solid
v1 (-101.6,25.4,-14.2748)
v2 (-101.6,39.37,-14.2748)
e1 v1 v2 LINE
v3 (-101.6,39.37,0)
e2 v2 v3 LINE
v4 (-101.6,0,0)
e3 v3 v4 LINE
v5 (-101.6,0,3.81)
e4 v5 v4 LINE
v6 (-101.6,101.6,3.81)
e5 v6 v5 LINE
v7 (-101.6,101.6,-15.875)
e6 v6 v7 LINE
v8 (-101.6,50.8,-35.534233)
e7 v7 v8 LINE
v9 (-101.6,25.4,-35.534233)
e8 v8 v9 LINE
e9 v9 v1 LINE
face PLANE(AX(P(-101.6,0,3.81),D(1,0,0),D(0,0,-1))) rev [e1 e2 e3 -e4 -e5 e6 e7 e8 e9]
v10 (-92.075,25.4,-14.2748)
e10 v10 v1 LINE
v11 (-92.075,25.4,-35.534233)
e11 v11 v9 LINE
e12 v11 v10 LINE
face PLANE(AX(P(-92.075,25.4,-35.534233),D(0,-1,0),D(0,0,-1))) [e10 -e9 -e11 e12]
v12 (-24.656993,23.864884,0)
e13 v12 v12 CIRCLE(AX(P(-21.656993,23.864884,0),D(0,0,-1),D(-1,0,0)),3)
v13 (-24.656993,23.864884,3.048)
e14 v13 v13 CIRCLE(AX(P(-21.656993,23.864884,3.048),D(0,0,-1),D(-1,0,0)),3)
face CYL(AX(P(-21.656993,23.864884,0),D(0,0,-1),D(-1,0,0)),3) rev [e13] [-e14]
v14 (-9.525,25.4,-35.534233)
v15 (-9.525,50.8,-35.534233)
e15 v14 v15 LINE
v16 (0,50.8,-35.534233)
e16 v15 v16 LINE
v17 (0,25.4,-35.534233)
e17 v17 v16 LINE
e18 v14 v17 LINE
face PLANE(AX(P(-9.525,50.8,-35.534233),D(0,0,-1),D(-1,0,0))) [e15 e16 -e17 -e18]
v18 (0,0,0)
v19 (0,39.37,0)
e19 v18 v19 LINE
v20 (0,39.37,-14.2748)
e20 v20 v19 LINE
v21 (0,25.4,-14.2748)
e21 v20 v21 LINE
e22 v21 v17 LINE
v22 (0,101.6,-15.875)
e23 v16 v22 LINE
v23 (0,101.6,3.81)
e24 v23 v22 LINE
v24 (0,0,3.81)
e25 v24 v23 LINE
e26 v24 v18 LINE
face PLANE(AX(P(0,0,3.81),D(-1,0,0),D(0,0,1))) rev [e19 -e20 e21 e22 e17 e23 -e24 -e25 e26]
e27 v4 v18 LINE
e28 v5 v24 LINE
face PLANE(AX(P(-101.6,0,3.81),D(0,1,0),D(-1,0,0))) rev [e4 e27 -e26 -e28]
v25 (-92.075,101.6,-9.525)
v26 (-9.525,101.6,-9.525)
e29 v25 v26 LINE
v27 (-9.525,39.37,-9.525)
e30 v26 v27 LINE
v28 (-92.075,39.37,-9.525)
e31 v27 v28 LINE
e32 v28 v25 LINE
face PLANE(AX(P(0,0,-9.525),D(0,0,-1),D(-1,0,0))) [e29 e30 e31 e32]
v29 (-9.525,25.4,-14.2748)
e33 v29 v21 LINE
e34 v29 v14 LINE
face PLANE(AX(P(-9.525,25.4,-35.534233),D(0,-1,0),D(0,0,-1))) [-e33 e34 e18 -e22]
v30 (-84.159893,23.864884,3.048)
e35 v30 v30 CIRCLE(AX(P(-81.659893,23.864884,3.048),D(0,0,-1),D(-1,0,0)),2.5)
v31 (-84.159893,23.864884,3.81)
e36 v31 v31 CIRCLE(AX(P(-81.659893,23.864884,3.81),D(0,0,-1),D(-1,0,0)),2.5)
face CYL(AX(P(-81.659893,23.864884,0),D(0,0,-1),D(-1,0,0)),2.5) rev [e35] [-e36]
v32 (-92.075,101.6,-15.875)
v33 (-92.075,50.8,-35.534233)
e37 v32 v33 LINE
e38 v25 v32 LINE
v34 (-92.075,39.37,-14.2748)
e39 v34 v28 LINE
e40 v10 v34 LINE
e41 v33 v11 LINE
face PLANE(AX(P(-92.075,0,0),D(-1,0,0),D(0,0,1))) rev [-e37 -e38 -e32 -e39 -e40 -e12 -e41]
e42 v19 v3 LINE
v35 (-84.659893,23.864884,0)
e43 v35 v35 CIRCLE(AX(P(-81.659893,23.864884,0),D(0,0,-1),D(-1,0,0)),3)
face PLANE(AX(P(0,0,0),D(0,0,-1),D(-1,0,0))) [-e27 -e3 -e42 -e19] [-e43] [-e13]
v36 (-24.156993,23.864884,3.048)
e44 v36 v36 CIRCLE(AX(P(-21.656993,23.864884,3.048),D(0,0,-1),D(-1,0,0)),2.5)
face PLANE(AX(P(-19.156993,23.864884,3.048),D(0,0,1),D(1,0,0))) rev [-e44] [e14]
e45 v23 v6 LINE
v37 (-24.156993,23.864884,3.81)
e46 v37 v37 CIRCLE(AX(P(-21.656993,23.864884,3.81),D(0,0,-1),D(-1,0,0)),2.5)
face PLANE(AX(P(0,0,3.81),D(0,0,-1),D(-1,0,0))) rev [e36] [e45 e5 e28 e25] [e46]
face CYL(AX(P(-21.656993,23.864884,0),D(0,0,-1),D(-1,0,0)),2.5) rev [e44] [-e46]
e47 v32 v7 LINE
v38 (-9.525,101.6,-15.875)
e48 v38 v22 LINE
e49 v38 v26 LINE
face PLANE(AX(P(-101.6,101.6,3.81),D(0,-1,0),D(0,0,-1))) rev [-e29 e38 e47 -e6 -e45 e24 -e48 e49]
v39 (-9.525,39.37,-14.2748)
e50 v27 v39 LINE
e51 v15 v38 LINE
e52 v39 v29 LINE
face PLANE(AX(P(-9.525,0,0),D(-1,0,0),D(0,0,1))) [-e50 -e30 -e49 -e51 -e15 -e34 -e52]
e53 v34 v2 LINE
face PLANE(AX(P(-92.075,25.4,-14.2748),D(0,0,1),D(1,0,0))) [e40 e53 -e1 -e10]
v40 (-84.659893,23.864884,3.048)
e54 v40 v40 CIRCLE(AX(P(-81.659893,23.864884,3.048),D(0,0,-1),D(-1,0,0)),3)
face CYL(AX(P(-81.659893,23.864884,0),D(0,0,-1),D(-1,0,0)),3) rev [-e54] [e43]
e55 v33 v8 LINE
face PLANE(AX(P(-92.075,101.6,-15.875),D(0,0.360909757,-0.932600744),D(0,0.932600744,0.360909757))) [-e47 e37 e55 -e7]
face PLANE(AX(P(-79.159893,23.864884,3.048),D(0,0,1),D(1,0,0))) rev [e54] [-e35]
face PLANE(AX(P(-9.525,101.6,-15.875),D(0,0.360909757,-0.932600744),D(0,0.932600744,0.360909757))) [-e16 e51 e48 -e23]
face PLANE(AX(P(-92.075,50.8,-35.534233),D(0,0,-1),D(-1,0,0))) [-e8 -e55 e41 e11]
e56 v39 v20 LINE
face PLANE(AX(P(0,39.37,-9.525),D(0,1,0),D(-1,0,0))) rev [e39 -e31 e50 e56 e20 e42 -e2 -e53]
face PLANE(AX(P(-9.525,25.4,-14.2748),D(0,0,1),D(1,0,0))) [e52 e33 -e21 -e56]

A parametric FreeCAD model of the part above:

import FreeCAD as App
import Part
import Sketcher
Q = App.Units.Quantity

doc = App.newDocument("Part")
params = doc.addObject("Spreadsheet::Sheet", "Params")
for row, (alias, value) in enumerate([
    ("sketch1_width", "4 in"),
    ("pad1_length", "0.15 in"),
    ("hole_diameter", "5 mm"),
    ("hole_cbore_diameter", "6 mm"),
    ("hole_cbore_depth", "0.12 in"),
    ("sketch3_width", "4 in"),
    ("sketch3_height", "2.45 in"),
    ("pad2_length", "0.375 in"),
    ("sketch4_width", "1 in"),
    ("sketch4_width2", "2.45 in"),
    ("sketch4_height", "0.25 in"),
    ("sketch4_height2", "0.187 in"),
    ("pad3_length", "0.375 in"),
    ("sketch5_width", "1 in"),
    ("sketch5_width2", "2.45 in"),
    ("sketch5_height", "0.25 in"),
    ("sketch5_height2", "0.187 in"),
    ("pad4_length", "0.375 in"),
], start=1):
    params.set(f"A{row}", alias)
    params.set(f"B{row}", "=" + value)
    params.setAlias(f"B{row}", alias)

body = doc.addObject("PartDesign::Body", "Body")

# Sketch on XY plane
sketch1 = doc.addObject("Sketcher::SketchObject", "Sketch")
body.addObject(sketch1)
sketch1.AttachmentSupport = (doc.XY_Plane, [""])
sketch1.MapMode = "FlatFace"
sketch1.addGeometry(Part.LineSegment(App.Vector(-102, 102, 0), App.Vector(-102, 0, 0)), False)
sketch1.addGeometry(Part.LineSegment(App.Vector(-102, 0, 0), App.Vector(0, 0, 0)), False)
sketch1.addGeometry(Part.LineSegment(App.Vector(0, 0, 0), App.Vector(0, 102, 0)), False)
sketch1.addGeometry(Part.LineSegment(App.Vector(0, 102, 0), App.Vector(-102, 102, 0)), False)
sketch1.addConstraint(Sketcher.Constraint("Coincident", 0, 2, 1, 1))
sketch1.addConstraint(Sketcher.Constraint("Coincident", 1, 2, 2, 1))
sketch1.addConstraint(Sketcher.Constraint("Coincident", 2, 2, 3, 1))
sketch1.addConstraint(Sketcher.Constraint("Coincident", 3, 2, 0, 1))
sketch1.addConstraint(Sketcher.Constraint("Vertical", 0))
sketch1.addConstraint(Sketcher.Constraint("Horizontal", 1))
sketch1.addConstraint(Sketcher.Constraint("Vertical", 2))
sketch1.addConstraint(Sketcher.Constraint("Horizontal", 3))
sketch1.addConstraint(Sketcher.Constraint("Coincident", 1, 2, -1, 1))
sketch1.addConstraint(Sketcher.Constraint("Equal", 3, 0))
sketch1.addConstraint(Sketcher.Constraint("DistanceX", 1, 1, 1, 2, Q("4 in")))
sketch1.setExpression("Constraints[10]", "Params.sketch1_width")
pad1 = doc.addObject("PartDesign::Pad", "Pad")
body.addObject(pad1)
pad1.Profile = sketch1
pad1.setExpression("Length", "Params.pad1_length")

# Sketch on XY plane
sketch2 = doc.addObject("Sketcher::SketchObject", "Sketch001")
body.addObject(sketch2)
sketch2.AttachmentSupport = (doc.XY_Plane, [""])
sketch2.MapMode = "FlatFace"
sketch2.addGeometry(Part.Circle(App.Vector(-21.7, 23.9, 0), App.Vector(0, 0, 1), 2.5), False)
sketch2.addGeometry(Part.Circle(App.Vector(-81.7, 23.9, 0), App.Vector(0, 0, 1), 2.5), False)
sketch2.addConstraint(Sketcher.Constraint("Equal", 0, 1))
sketch2.addConstraint(Sketcher.Constraint("Horizontal", 0, 3, 1, 3))
sketch2.addConstraint(Sketcher.Constraint("Diameter", 0, 5.0))
sketch2.addConstraint(Sketcher.Constraint("DistanceX", 1, 3, 0, 3, 60.0029))
sketch2.addConstraint(Sketcher.Constraint("DistanceX", 0, 3, -1, 1, 21.656993))
sketch2.addConstraint(Sketcher.Constraint("DistanceY", -1, 1, 0, 3, 23.864884))
doc.recompute()
hole = doc.addObject("PartDesign::Hole", "Hole")
body.addObject(hole)
hole.Profile = sketch2
hole.ThreadType = "None"
hole.setExpression("Diameter", "Params.hole_diameter")
hole.DepthType = "ThroughAll"
hole.HoleCutType = "Counterbore"
hole.setExpression("HoleCutDiameter", "Params.hole_cbore_diameter")
hole.setExpression("HoleCutDepth", "Params.hole_cbore_depth")
hole.Reversed = True

# Sketch on XY plane
sketch3 = doc.addObject("Sketcher::SketchObject", "Sketch002")
body.addObject(sketch3)
sketch3.AttachmentSupport = (doc.XY_Plane, [""])
sketch3.MapMode = "FlatFace"
sketch3.addGeometry(Part.LineSegment(App.Vector(0, 102, 0), App.Vector(0, 39, 0)), False)
sketch3.addGeometry(Part.LineSegment(App.Vector(0, 39, 0), App.Vector(-102, 39, 0)), False)
sketch3.addGeometry(Part.LineSegment(App.Vector(-102, 39, 0), App.Vector(-102, 102, 0)), False)
sketch3.addGeometry(Part.LineSegment(App.Vector(-102, 102, 0), App.Vector(0, 102, 0)), False)
sketch3.addConstraint(Sketcher.Constraint("Coincident", 0, 2, 1, 1))
sketch3.addConstraint(Sketcher.Constraint("Coincident", 1, 2, 2, 1))
sketch3.addConstraint(Sketcher.Constraint("Coincident", 2, 2, 3, 1))
sketch3.addConstraint(Sketcher.Constraint("Coincident", 3, 2, 0, 1))
sketch3.addConstraint(Sketcher.Constraint("Vertical", 0))
sketch3.addConstraint(Sketcher.Constraint("Horizontal", 1))
sketch3.addConstraint(Sketcher.Constraint("Vertical", 2))
sketch3.addConstraint(Sketcher.Constraint("Horizontal", 3))
sketch3.addConstraint(Sketcher.Constraint("PointOnObject", 0, 2, -2))
sketch3.addConstraint(Sketcher.Constraint("DistanceX", 1, 2, 1, 1, Q("4 in")))
sketch3.addConstraint(Sketcher.Constraint("DistanceY", -1, 1, 2, 2, Q("4 in")))
sketch3.addConstraint(Sketcher.Constraint("DistanceY", 0, 2, 0, 1, Q("2.45 in")))
sketch3.setExpression("Constraints[9]", "Params.sketch3_width")
sketch3.setExpression("Constraints[11]", "Params.sketch3_height")
pad2 = doc.addObject("PartDesign::Pad", "Pad001")
body.addObject(pad2)
pad2.Profile = sketch3
pad2.setExpression("Length", "Params.pad2_length")
pad2.Reversed = True

# Sketch on YZ plane
sketch4 = doc.addObject("Sketcher::SketchObject", "Sketch003")
body.addObject(sketch4)
sketch4.AttachmentSupport = (doc.YZ_Plane, [""])
sketch4.MapMode = "FlatFace"
sketch4.addGeometry(Part.LineSegment(App.Vector(101.6, -15.9, 0), App.Vector(101.6, -9.5, 0)), False)
sketch4.addGeometry(Part.LineSegment(App.Vector(101.6, -9.5, 0), App.Vector(39.4, -9.5, 0)), False)
sketch4.addGeometry(Part.LineSegment(App.Vector(39.4, -9.5, 0), App.Vector(39.4, -14.3, 0)), False)
sketch4.addGeometry(Part.LineSegment(App.Vector(39.4, -14.3, 0), App.Vector(25.4, -14.3, 0)), False)
sketch4.addGeometry(Part.LineSegment(App.Vector(25.4, -14.3, 0), App.Vector(25.4, -35.5, 0)), False)
sketch4.addGeometry(Part.LineSegment(App.Vector(25.4, -35.5, 0), App.Vector(50.8, -35.5, 0)), False)
sketch4.addGeometry(Part.LineSegment(App.Vector(50.8, -35.5, 0), App.Vector(101.6, -15.9, 0)), False)
sketch4.addConstraint(Sketcher.Constraint("Coincident", 0, 2, 1, 1))
sketch4.addConstraint(Sketcher.Constraint("Coincident", 1, 2, 2, 1))
sketch4.addConstraint(Sketcher.Constraint("Coincident", 2, 2, 3, 1))
sketch4.addConstraint(Sketcher.Constraint("Coincident", 3, 2, 4, 1))
sketch4.addConstraint(Sketcher.Constraint("Coincident", 4, 2, 5, 1))
sketch4.addConstraint(Sketcher.Constraint("Coincident", 5, 2, 6, 1))
sketch4.addConstraint(Sketcher.Constraint("Coincident", 6, 2, 0, 1))
sketch4.addConstraint(Sketcher.Constraint("Vertical", 0))
sketch4.addConstraint(Sketcher.Constraint("Horizontal", 1))
sketch4.addConstraint(Sketcher.Constraint("Vertical", 2))
sketch4.addConstraint(Sketcher.Constraint("Horizontal", 3))
sketch4.addConstraint(Sketcher.Constraint("Vertical", 4))
sketch4.addConstraint(Sketcher.Constraint("Horizontal", 5))
sketch4.addConstraint(Sketcher.Constraint("DistanceX", 5, 1, 5, 2, Q("1 in")))
sketch4.addConstraint(Sketcher.Constraint("DistanceX", -1, 1, 0, 2, Q("4 in")))
sketch4.addConstraint(Sketcher.Constraint("DistanceX", -1, 1, 3, 2, Q("1 in")))
sketch4.addConstraint(Sketcher.Constraint("DistanceX", 1, 2, 1, 1, Q("2.45 in")))
sketch4.addConstraint(Sketcher.Constraint("DistanceY", 0, 1, 0, 2, Q("0.25 in")))
sketch4.addConstraint(Sketcher.Constraint("DistanceY", 2, 2, 2, 1, Q("0.187 in")))
sketch4.addConstraint(Sketcher.Constraint("DistanceY", 0, 2, -1, 1, Q("0.375 in")))
sketch4.addConstraint(Sketcher.Constraint("DistanceY", 4, 2, 4, 1, 21.259433))
sketch4.setExpression("Constraints[13]", "Params.sketch4_width")
sketch4.setExpression("Constraints[16]", "Params.sketch4_width2")
sketch4.setExpression("Constraints[17]", "Params.sketch4_height")
sketch4.setExpression("Constraints[18]", "Params.sketch4_height2")
pad3 = doc.addObject("PartDesign::Pad", "Pad002")
body.addObject(pad3)
pad3.Profile = sketch4
pad3.setExpression("Length", "Params.pad3_length")
pad3.Reversed = True

# Sketch on YZ plane
sketch5 = doc.addObject("Sketcher::SketchObject", "Sketch004")
body.addObject(sketch5)
sketch5.AttachmentSupport = (doc.YZ_Plane, [""])
sketch5.MapMode = "FlatFace"
sketch5.AttachmentOffset = App.Placement(App.Vector(0, 0, -4 * 25.4), App.Rotation())
sketch5.addGeometry(Part.LineSegment(App.Vector(39.4, -9.5, 0), App.Vector(101.6, -9.5, 0)), False)
sketch5.addGeometry(Part.LineSegment(App.Vector(101.6, -9.5, 0), App.Vector(101.6, -15.9, 0)), False)
sketch5.addGeometry(Part.LineSegment(App.Vector(101.6, -15.9, 0), App.Vector(50.8, -35.5, 0)), False)
sketch5.addGeometry(Part.LineSegment(App.Vector(50.8, -35.5, 0), App.Vector(25.4, -35.5, 0)), False)
sketch5.addGeometry(Part.LineSegment(App.Vector(25.4, -35.5, 0), App.Vector(25.4, -14.3, 0)), False)
sketch5.addGeometry(Part.LineSegment(App.Vector(25.4, -14.3, 0), App.Vector(39.4, -14.3, 0)), False)
sketch5.addGeometry(Part.LineSegment(App.Vector(39.4, -14.3, 0), App.Vector(39.4, -9.5, 0)), False)
sketch5.addConstraint(Sketcher.Constraint("Coincident", 0, 2, 1, 1))
sketch5.addConstraint(Sketcher.Constraint("Coincident", 1, 2, 2, 1))
sketch5.addConstraint(Sketcher.Constraint("Coincident", 2, 2, 3, 1))
sketch5.addConstraint(Sketcher.Constraint("Coincident", 3, 2, 4, 1))
sketch5.addConstraint(Sketcher.Constraint("Coincident", 4, 2, 5, 1))
sketch5.addConstraint(Sketcher.Constraint("Coincident", 5, 2, 6, 1))
sketch5.addConstraint(Sketcher.Constraint("Coincident", 6, 2, 0, 1))
sketch5.addConstraint(Sketcher.Constraint("Horizontal", 0))
sketch5.addConstraint(Sketcher.Constraint("Vertical", 1))
sketch5.addConstraint(Sketcher.Constraint("Horizontal", 3))
sketch5.addConstraint(Sketcher.Constraint("Vertical", 4))
sketch5.addConstraint(Sketcher.Constraint("Horizontal", 5))
sketch5.addConstraint(Sketcher.Constraint("Vertical", 6))
sketch5.addConstraint(Sketcher.Constraint("DistanceX", 3, 2, 3, 1, Q("1 in")))
sketch5.addConstraint(Sketcher.Constraint("DistanceX", -1, 1, 0, 2, Q("4 in")))
sketch5.addConstraint(Sketcher.Constraint("DistanceX", -1, 1, 2, 2, Q("2 in")))
sketch5.addConstraint(Sketcher.Constraint("DistanceX", 0, 1, 0, 2, Q("2.45 in")))
sketch5.addConstraint(Sketcher.Constraint("DistanceY", 1, 2, 1, 1, Q("0.25 in")))
sketch5.addConstraint(Sketcher.Constraint("DistanceY", 6, 1, 6, 2, Q("0.187 in")))
sketch5.addConstraint(Sketcher.Constraint("DistanceY", 0, 2, -1, 1, Q("0.375 in")))
sketch5.addConstraint(Sketcher.Constraint("DistanceY", 4, 1, 4, 2, 21.259433))
sketch5.setExpression("Constraints[13]", "Params.sketch5_width")
sketch5.setExpression("Constraints[16]", "Params.sketch5_width2")
sketch5.setExpression("Constraints[17]", "Params.sketch5_height")
sketch5.setExpression("Constraints[18]", "Params.sketch5_height2")
pad4 = doc.addObject("PartDesign::Pad", "Pad003")
body.addObject(pad4)
pad4.Profile = sketch5
pad4.setExpression("Length", "Params.pad4_length")

doc.recompute()
